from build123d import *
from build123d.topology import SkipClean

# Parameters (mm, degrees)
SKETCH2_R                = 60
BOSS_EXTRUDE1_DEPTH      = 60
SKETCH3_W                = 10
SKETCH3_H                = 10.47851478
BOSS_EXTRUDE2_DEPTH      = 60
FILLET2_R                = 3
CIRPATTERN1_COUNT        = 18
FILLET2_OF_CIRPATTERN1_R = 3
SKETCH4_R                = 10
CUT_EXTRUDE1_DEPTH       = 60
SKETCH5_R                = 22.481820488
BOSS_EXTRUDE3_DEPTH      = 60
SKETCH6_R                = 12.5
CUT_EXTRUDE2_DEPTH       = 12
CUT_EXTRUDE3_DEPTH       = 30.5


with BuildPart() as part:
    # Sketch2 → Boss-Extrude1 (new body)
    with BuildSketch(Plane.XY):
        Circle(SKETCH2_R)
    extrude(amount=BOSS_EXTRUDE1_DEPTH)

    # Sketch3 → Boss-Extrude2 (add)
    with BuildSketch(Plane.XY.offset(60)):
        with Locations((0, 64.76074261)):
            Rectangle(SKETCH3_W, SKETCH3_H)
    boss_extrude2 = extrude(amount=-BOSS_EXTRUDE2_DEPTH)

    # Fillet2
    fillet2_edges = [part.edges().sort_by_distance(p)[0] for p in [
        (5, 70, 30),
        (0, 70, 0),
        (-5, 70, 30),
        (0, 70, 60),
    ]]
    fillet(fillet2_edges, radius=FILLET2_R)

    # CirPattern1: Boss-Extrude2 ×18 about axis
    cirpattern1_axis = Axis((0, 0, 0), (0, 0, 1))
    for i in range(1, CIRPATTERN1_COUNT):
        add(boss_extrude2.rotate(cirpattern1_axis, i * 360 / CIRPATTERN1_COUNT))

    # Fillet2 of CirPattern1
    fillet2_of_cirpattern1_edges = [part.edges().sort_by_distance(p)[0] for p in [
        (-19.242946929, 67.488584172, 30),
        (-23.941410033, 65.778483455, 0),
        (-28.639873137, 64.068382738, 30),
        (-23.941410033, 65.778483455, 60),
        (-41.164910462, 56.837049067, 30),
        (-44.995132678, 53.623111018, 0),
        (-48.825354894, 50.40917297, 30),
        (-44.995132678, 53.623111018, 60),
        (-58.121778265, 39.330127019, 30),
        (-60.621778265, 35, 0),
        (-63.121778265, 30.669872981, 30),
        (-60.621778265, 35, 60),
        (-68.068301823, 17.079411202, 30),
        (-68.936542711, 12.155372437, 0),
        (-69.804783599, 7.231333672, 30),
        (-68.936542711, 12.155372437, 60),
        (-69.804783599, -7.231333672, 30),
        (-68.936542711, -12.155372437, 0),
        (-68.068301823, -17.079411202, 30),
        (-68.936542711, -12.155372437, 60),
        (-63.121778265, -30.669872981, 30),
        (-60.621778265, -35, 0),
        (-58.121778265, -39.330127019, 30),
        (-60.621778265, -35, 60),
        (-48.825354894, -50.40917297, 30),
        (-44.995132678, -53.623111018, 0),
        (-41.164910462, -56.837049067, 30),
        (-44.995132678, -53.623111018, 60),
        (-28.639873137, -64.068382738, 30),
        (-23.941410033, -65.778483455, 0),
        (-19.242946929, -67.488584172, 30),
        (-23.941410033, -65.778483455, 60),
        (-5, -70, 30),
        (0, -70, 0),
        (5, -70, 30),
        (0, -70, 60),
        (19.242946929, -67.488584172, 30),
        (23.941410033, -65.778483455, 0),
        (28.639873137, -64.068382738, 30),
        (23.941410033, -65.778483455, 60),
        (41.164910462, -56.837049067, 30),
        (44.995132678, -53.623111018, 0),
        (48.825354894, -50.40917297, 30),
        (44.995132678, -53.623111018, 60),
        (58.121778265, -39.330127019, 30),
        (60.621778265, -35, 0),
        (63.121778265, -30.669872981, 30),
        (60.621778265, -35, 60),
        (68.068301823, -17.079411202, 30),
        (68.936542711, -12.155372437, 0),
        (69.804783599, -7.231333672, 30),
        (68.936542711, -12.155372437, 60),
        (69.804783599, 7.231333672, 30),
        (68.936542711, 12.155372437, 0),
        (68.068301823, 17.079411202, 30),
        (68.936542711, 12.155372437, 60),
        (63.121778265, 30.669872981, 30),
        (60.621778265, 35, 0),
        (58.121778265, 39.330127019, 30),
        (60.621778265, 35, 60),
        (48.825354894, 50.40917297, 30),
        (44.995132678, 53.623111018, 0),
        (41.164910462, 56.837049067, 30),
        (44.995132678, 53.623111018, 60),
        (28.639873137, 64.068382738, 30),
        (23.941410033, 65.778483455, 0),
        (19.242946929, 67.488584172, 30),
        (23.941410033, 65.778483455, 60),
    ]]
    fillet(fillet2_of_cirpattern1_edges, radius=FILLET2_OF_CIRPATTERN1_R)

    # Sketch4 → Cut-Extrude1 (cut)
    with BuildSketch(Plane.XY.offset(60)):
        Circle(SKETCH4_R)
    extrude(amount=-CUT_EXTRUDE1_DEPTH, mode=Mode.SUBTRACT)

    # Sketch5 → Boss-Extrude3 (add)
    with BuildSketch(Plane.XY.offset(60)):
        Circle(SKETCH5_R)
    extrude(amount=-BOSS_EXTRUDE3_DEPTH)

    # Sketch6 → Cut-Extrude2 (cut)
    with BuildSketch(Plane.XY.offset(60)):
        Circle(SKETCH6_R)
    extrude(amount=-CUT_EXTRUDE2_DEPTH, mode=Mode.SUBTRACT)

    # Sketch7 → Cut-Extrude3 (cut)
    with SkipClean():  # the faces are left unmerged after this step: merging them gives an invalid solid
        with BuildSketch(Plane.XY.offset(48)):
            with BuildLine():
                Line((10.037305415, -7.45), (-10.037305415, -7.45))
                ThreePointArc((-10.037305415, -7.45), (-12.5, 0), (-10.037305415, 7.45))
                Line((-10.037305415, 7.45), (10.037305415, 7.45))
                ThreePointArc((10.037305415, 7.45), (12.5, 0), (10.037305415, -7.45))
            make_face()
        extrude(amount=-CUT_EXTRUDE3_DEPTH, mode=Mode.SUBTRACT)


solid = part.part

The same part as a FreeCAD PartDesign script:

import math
import FreeCAD as App
import Part
import Sketcher
from FreeCAD import Vector
Q = App.Units.Quantity


def edges_at(feature, points):
    """Names of the edges that pass closest to the given points."""
    edges = feature.Shape.Edges
    near = lambda p: min(range(len(edges)), key=lambda i: edges[i].distToShape(Part.Vertex(*p))[0])
    return sorted({f"Edge{near(p) + 1}" for p in points})

doc = App.newDocument("Part")
params = doc.addObject("Spreadsheet::Sheet", "Params")
for row, (alias, value) in enumerate([
    ("sketch1_diameter", "120 mm"),
    ("pad1_length", "60 mm"),
    ("sketch2_width", "10 mm"),
    ("pad2_length", "60 mm"),
    ("fillet_radius", "3 mm"),
    ("fillet2_radius", "3 mm"),
    ("sketch3_diameter", "20 mm"),
    ("pocket1_length", "60 mm"),
    ("pad3_length", "60 mm"),
    ("sketch5_diameter", "25 mm"),
    ("pocket2_length", "12 mm"),
    ("sketch6_radius", "12.5 mm"),
    ("pocket3_length", "30.5 mm"),
], start=1):
    params.set(f"A{row}", alias)
    params.set(f"B{row}", "=" + value)
    params.setAlias(f"B{row}", alias)

body = doc.addObject("PartDesign::Body", "Body")

# Sketch on XY plane
sketch1 = body.newObject("Sketcher::SketchObject", "Sketch")
sketch1.AttachmentSupport = (doc.getObject("XY_Plane"), [""])
sketch1.MapMode = "FlatFace"
sketch1.addGeometry(Part.Circle(Vector(0, 0, 0), Vector(0, 0, 1), 60), False)
sketch1.addConstraint(Sketcher.Constraint("Coincident", 0, 3, -1, 1))
sketch1.addConstraint(Sketcher.Constraint("Diameter", 0, Q("120 mm")))
sketch1.setExpression("Constraints[1]", "Params.sketch1_diameter")
pad1 = body.newObject("PartDesign::Pad", "Pad")
pad1.Profile = sketch1
pad1.setExpression("Length", "Params.pad1_length")

# Sketch on XY plane
sketch2 = body.newObject("Sketcher::SketchObject", "Sketch001")
sketch2.AttachmentSupport = (doc.getObject("XY_Plane"), [""])
sketch2.MapMode = "FlatFace"
sketch2.AttachmentOffset = App.Placement(Vector(0, 0, 60), App.Rotation())
sketch2.addGeometry(Part.LineSegment(Vector(-5, 70, 0), Vector(-5, 59.521485, 0)), False)
sketch2.addGeometry(Part.LineSegment(Vector(-5, 59.521485, 0), Vector(5, 59.521485, 0)), False)
sketch2.addGeometry(Part.LineSegment(Vector(5, 59.521485, 0), Vector(5, 70, 0)), False)
sketch2.addGeometry(Part.LineSegment(Vector(5, 70, 0), Vector(-5, 70, 0)), False)
sketch2.addConstraint(Sketcher.Constraint("Coincident", 0, 2, 1, 1))
sketch2.addConstraint(Sketcher.Constraint("Coincident", 1, 2, 2, 1))
sketch2.addConstraint(Sketcher.Constraint("Coincident", 2, 2, 3, 1))
sketch2.addConstraint(Sketcher.Constraint("Coincident", 3, 2, 0, 1))
sketch2.addConstraint(Sketcher.Constraint("Vertical", 0))
sketch2.addConstraint(Sketcher.Constraint("Horizontal", 1))
sketch2.addConstraint(Sketcher.Constraint("Vertical", 2))
sketch2.addConstraint(Sketcher.Constraint("Horizontal", 3))
sketch2.addConstraint(Sketcher.Constraint("DistanceX", 1, 1, 1, 2, Q("10 mm")))
sketch2.addConstraint(Sketcher.Constraint("DistanceX", 0, 2, -1, 1, Q("5 mm")))
sketch2.addConstraint(Sketcher.Constraint("DistanceY", -1, 1, 2, 2, Q("70 mm")))
sketch2.addConstraint(Sketcher.Constraint("DistanceY", 0, 2, 0, 1, Q("10.478515 mm")))
sketch2.setExpression("Constraints[8]", "Params.sketch2_width")
pad2 = body.newObject("PartDesign::Pad", "Pad001")
pad2.Profile = sketch2
pad2.setExpression("Length", "Params.pad2_length")
pad2.Reversed = True
doc.recompute()

fillet = body.newObject("PartDesign::Fillet", "Fillet")
fillet.Base = (pad2, edges_at(pad2, [
    (5, 70, 30),
    (0, 70, 0),
    (-5, 70, 30),
    (0, 70, 60),
]))
fillet.setExpression("Radius", "Params.fillet_radius")
doc.recompute()

polarpattern = body.newObject("PartDesign::PolarPattern", "PolarPattern")
polarpattern.Originals = [pad2]
polarpattern.Axis = (doc.getObject("Z_Axis"), [""])
polarpattern.Angle = 360
polarpattern.Occurrences = 18
body.Tip = polarpattern
doc.recompute()

fillet2 = body.newObject("PartDesign::Fillet", "Fillet001")
fillet2.Base = (polarpattern, edges_at(polarpattern, [
    (-19.243, 67.489, 30),
    (-23.941, 65.778, 0),
    (-28.64, 64.068, 30),
    (-23.941, 65.778, 60),
    (-41.165, 56.837, 30),
    (-44.995, 53.623, 0),
    (-48.825, 50.409, 30),
    (-44.995, 53.623, 60),
    (-58.122, 39.33, 30),
    (-60.622, 35, 0),
    (-63.122, 30.67, 30),
    (-60.622, 35, 60),
    (-68.068, 17.079, 30),
    (-68.937, 12.155, 0),
    (-69.805, 7.231, 30),
    (-68.937, 12.155, 60),
    (-69.805, -7.231, 30),
    (-68.937, -12.155, 0),
    (-68.068, -17.079, 30),
    (-68.937, -12.155, 60),
    (-63.122, -30.67, 30),
    (-60.622, -35, 0),
    (-58.122, -39.33, 30),
    (-60.622, -35, 60),
    (-48.825, -50.409, 30),
    (-44.995, -53.623, 0),
    (-41.165, -56.837, 30),
    (-44.995, -53.623, 60),
    (-28.64, -64.068, 30),
    (-23.941, -65.778, 0),
    (-19.243, -67.489, 30),
    (-23.941, -65.778, 60),
    (-5, -70, 30),
    (0, -70, 0),
    (5, -70, 30),
    (0, -70, 60),
    (19.243, -67.489, 30),
    (23.941, -65.778, 0),
    (28.64, -64.068, 30),
    (23.941, -65.778, 60),
    (41.165, -56.837, 30),
    (44.995, -53.623, 0),
    (48.825, -50.409, 30),
    (44.995, -53.623, 60),
    (58.122, -39.33, 30),
    (60.622, -35, 0),
    (63.122, -30.67, 30),
    (60.622, -35, 60),
    (68.068, -17.079, 30),
    (68.937, -12.155, 0),
    (69.805, -7.231, 30),
    (68.937, -12.155, 60),
    (69.805, 7.231, 30),
    (68.937, 12.155, 0),
    (68.068, 17.079, 30),
    (68.937, 12.155, 60),
    (63.122, 30.67, 30),
    (60.622, 35, 0),
    (58.122, 39.33, 30),
    (60.622, 35, 60),
    (48.825, 50.409, 30),
    (44.995, 53.623, 0),
    (41.165, 56.837, 30),
    (44.995, 53.623, 60),
    (28.64, 64.068, 30),
    (23.941, 65.778, 0),
    (19.243, 67.489, 30),
    (23.941, 65.778, 60),
]))
fillet2.setExpression("Radius", "Params.fillet2_radius")

# Sketch on XY plane
sketch3 = body.newObject("Sketcher::SketchObject", "Sketch002")
sketch3.AttachmentSupport = (doc.getObject("XY_Plane"), [""])
sketch3.MapMode = "FlatFace"
sketch3.AttachmentOffset = App.Placement(Vector(0, 0, 60), App.Rotation())
sketch3.addGeometry(Part.Circle(Vector(0, 0, 0), Vector(0, 0, 1), 10), False)
sketch3.addConstraint(Sketcher.Constraint("Coincident", 0, 3, -1, 1))
sketch3.addConstraint(Sketcher.Constraint("Diameter", 0, Q("20 mm")))
sketch3.setExpression("Constraints[1]", "Params.sketch3_diameter")
pocket1 = body.newObject("PartDesign::Pocket", "Pocket")
pocket1.Profile = sketch3
pocket1.setExpression("Length", "Params.pocket1_length")

# Sketch on XY plane
sketch4 = body.newObject("Sketcher::SketchObject", "Sketch003")
sketch4.AttachmentSupport = (doc.getObject("XY_Plane"), [""])
sketch4.MapMode = "FlatFace"
sketch4.AttachmentOffset = App.Placement(Vector(0, 0, 60), App.Rotation())
sketch4.addGeometry(Part.Circle(Vector(0, 0, 0), Vector(0, 0, 1), 22.48182), False)
sketch4.addConstraint(Sketcher.Constraint("Coincident", 0, 3, -1, 1))
sketch4.addConstraint(Sketcher.Constraint("Diameter", 0, Q("44.963641 mm")))
pad3 = body.newObject("PartDesign::Pad", "Pad002")
pad3.Profile = sketch4
pad3.setExpression("Length", "Params.pad3_length")
pad3.Reversed = True

# Sketch on XY plane
sketch5 = body.newObject("Sketcher::SketchObject", "Sketch004")
sketch5.AttachmentSupport = (doc.getObject("XY_Plane"), [""])
sketch5.MapMode = "FlatFace"
sketch5.AttachmentOffset = App.Placement(Vector(0, 0, 60), App.Rotation())
sketch5.addGeometry(Part.Circle(Vector(0, 0, 0), Vector(0, 0, 1), 12.5), False)
sketch5.addConstraint(Sketcher.Constraint("Coincident", 0, 3, -1, 1))
sketch5.addConstraint(Sketcher.Constraint("Diameter", 0, Q("25 mm")))
sketch5.setExpression("Constraints[1]", "Params.sketch5_diameter")
pocket2 = body.newObject("PartDesign::Pocket", "Pocket001")
pocket2.Profile = sketch5
pocket2.setExpression("Length", "Params.pocket2_length")

# Sketch on XY plane
sketch6 = body.newObject("Sketcher::SketchObject", "Sketch005")
sketch6.AttachmentSupport = (doc.getObject("XY_Plane"), [""])
sketch6.MapMode = "FlatFace"
sketch6.AttachmentOffset = App.Placement(Vector(0, 0, 48), App.Rotation())
sketch6.addGeometry(Part.LineSegment(Vector(-10.037305, -7.45, 0), Vector(10.037305, -7.45, 0)), False)
sketch6.addGeometry(Part.ArcOfCircle(Part.Circle(Vector(0, 0, 0), Vector(0, 0, 1), 12.5), math.radians(-36.583953), math.radians(36.583953)), False)
sketch6.addGeometry(Part.LineSegment(Vector(10.037305, 7.45, 0), Vector(-10.037305, 7.45, 0)), False)
sketch6.addGeometry(Part.ArcOfCircle(Part.Circle(Vector(0, 0, 0), Vector(0, 0, 1), 12.5), math.radians(143.416047), math.radians(216.583953)), False)
sketch6.addConstraint(Sketcher.Constraint("Coincident", 0, 2, 1, 1))
sketch6.addConstraint(Sketcher.Constraint("Coincident", 1, 2, 2, 1))
sketch6.addConstraint(Sketcher.Constraint("Coincident", 2, 2, 3, 1))
sketch6.addConstraint(Sketcher.Constraint("Coincident", 3, 2, 0, 1))
sketch6.addConstraint(Sketcher.Constraint("Horizontal", 0))
sketch6.addConstraint(Sketcher.Constraint("Horizontal", 2))
sketch6.addConstraint(Sketcher.Constraint("Coincident", 1, 3, -1, 1))
sketch6.addConstraint(Sketcher.Constraint("Coincident", 3, 3, -1, 1))
sketch6.addConstraint(Sketcher.Constraint("Equal", 1, 3))
sketch6.addConstraint(Sketcher.Constraint("Vertical", 0, 2, 1, 2))
sketch6.addConstraint(Sketcher.Constraint("Radius", 1, Q("12.5 mm")))
sketch6.addConstraint(Sketcher.Constraint("DistanceY", 0, 2, 1, 2, Q("14.9 mm")))
sketch6.setExpression("Constraints[10]", "Params.sketch6_radius")
pocket3 = body.newObject("PartDesign::Pocket", "Pocket002")
pocket3.Profile = sketch6
pocket3.setExpression("Length", "Params.pocket3_length")

doc.recompute()
